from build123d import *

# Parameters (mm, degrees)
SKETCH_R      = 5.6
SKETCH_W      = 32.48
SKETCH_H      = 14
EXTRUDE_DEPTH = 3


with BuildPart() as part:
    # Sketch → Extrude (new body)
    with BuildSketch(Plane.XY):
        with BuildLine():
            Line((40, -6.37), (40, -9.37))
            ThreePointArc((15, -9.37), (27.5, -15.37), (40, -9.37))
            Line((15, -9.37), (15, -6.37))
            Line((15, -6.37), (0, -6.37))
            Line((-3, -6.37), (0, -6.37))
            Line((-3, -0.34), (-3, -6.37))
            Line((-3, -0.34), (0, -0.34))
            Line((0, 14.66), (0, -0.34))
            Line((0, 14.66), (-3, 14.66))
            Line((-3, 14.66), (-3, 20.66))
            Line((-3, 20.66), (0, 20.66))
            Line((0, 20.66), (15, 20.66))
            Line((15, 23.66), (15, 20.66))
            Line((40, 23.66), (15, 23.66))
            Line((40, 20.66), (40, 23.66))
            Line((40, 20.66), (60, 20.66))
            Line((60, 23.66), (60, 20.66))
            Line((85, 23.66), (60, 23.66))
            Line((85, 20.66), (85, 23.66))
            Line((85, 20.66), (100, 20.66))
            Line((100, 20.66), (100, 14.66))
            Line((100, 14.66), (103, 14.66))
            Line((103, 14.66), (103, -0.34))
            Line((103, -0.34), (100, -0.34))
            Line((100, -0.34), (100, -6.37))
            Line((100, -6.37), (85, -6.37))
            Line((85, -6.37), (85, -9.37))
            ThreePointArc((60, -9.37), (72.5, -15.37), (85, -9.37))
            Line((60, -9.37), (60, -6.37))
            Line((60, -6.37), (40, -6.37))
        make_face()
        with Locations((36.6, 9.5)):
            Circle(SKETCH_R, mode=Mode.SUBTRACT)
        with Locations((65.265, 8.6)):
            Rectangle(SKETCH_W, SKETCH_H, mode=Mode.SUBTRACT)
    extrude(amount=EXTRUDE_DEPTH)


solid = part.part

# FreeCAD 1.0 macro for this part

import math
import FreeCAD as App
import Part
import Sketcher
Q = App.Units.Quantity

doc = App.newDocument("Part")
body = doc.addObject("PartDesign::Body", "Body")

# Sketch on XY plane
sketch1 = body.newObject("Sketcher::SketchObject", "Sketch")
sketch1.AttachmentSupport = (doc.getObject("XY_Plane"), [""])
sketch1.MapMode = "FlatFace"
sketch1.addGeometry([
    Part.LineSegment(App.Vector(40, -9.4, 0), App.Vector(40, -6.4, 0)),  # 0
    Part.LineSegment(App.Vector(40, -6.4, 0), App.Vector(60, -6.4, 0)),  # 1
    Part.LineSegment(App.Vector(60, -6.4, 0), App.Vector(60, -9.4, 0)),  # 2
    Part.ArcOfCircle(Part.Circle(App.Vector(72.5, 0.7, 0), App.Vector(0, 0, 1), 16), math.radians(-141), math.radians(-39)),  # 3
    Part.LineSegment(App.Vector(85, -9.4, 0), App.Vector(85, -6.4, 0)),  # 4
    Part.LineSegment(App.Vector(85, -6.4, 0), App.Vector(100, -6.4, 0)),  # 5
    Part.LineSegment(App.Vector(100, -6.4, 0), App.Vector(100, -0.3, 0)),  # 6
    Part.LineSegment(App.Vector(100, -0.3, 0), App.Vector(103, -0.3, 0)),  # 7
    Part.LineSegment(App.Vector(103, -0.3, 0), App.Vector(103, 14.7, 0)),  # 8
    Part.LineSegment(App.Vector(103, 14.7, 0), App.Vector(100, 14.7, 0)),  # 9
    Part.LineSegment(App.Vector(100, 14.7, 0), App.Vector(100, 20.7, 0)),  # 10
    Part.LineSegment(App.Vector(100, 20.7, 0), App.Vector(85, 20.7, 0)),  # 11
    Part.LineSegment(App.Vector(85, 20.7, 0), App.Vector(85, 23.7, 0)),  # 12
    Part.LineSegment(App.Vector(85, 23.7, 0), App.Vector(60, 23.7, 0)),  # 13
    Part.LineSegment(App.Vector(60, 23.7, 0), App.Vector(60, 20.7, 0)),  # 14
    Part.LineSegment(App.Vector(60, 20.7, 0), App.Vector(40, 20.7, 0)),  # 15
    Part.LineSegment(App.Vector(40, 20.7, 0), App.Vector(40, 23.7, 0)),  # 16
    Part.LineSegment(App.Vector(40, 23.7, 0), App.Vector(15, 23.7, 0)),  # 17
    Part.LineSegment(App.Vector(15, 23.7, 0), App.Vector(15, 20.7, 0)),  # 18
    Part.LineSegment(App.Vector(15, 20.7, 0), App.Vector(-3, 20.7, 0)),  # 19
    Part.LineSegment(App.Vector(-3, 20.7, 0), App.Vector(-3, 14.7, 0)),  # 20
    Part.LineSegment(App.Vector(-3, 14.7, 0), App.Vector(0, 14.7, 0)),  # 21
    Part.LineSegment(App.Vector(0, 14.7, 0), App.Vector(0, -0.3, 0)),  # 22
    Part.LineSegment(App.Vector(0, -0.3, 0), App.Vector(-3, -0.3, 0)),  # 23
    Part.LineSegment(App.Vector(-3, -0.3, 0), App.Vector(-3, -6.4, 0)),  # 24
    Part.LineSegment(App.Vector(-3, -6.4, 0), App.Vector(15, -6.4, 0)),  # 25
    Part.LineSegment(App.Vector(15, -6.4, 0), App.Vector(15, -9.4, 0)),  # 26
    Part.ArcOfCircle(Part.Circle(App.Vector(27.5, 0.7, 0), App.Vector(0, 0, 1), 16), math.radians(-141), math.radians(-39)),  # 27
    Part.LineSegment(App.Vector(49, 1.6, 0), App.Vector(49, 15.6, 0)),  # 28
    Part.LineSegment(App.Vector(49, 15.6, 0), App.Vector(81.5, 15.6, 0)),  # 29
    Part.LineSegment(App.Vector(81.5, 15.6, 0), App.Vector(81.5, 1.6, 0)),  # 30
    Part.LineSegment(App.Vector(81.5, 1.6, 0), App.Vector(49, 1.6, 0)),  # 31
    Part.Circle(App.Vector(36.6, 9.5, 0), App.Vector(0, 0, 1), 5.6),  # 32
], False)
sketch1.addConstraint([
    Sketcher.Constraint("Coincident", 0, 2, 1, 1),
    Sketcher.Constraint("Coincident", 1, 2, 2, 1),
    Sketcher.Constraint("Coincident", 2, 2, 3, 1),
    Sketcher.Constraint("Coincident", 3, 2, 4, 1),
    Sketcher.Constraint("Coincident", 4, 2, 5, 1),
    Sketcher.Constraint("Coincident", 5, 2, 6, 1),
    Sketcher.Constraint("Coincident", 6, 2, 7, 1),
    Sketcher.Constraint("Coincident", 7, 2, 8, 1),
    Sketcher.Constraint("Coincident", 8, 2, 9, 1),
    Sketcher.Constraint("Coincident", 9, 2, 10, 1),
    Sketcher.Constraint("Coincident", 10, 2, 11, 1),
    Sketcher.Constraint("Coincident", 11, 2, 12, 1),
    Sketcher.Constraint("Coincident", 12, 2, 13, 1),
    Sketcher.Constraint("Coincident", 13, 2, 14, 1),
    Sketcher.Constraint("Coincident", 14, 2, 15, 1),
    Sketcher.Constraint("Coincident", 15, 2, 16, 1),
    Sketcher.Constraint("Coincident", 16, 2, 17, 1),
    Sketcher.Constraint("Coincident", 17, 2, 18, 1),
    Sketcher.Constraint("Coincident", 18, 2, 19, 1),
    Sketcher.Constraint("Coincident", 19, 2, 20, 1),
    Sketcher.Constraint("Coincident", 20, 2, 21, 1),
    Sketcher.Constraint("Coincident", 21, 2, 22, 1),
    Sketcher.Constraint("Coincident", 22, 2, 23, 1),
    Sketcher.Constraint("Coincident", 23, 2, 24, 1),
    Sketcher.Constraint("Coincident", 24, 2, 25, 1),
    Sketcher.Constraint("Coincident", 25, 2, 26, 1),
    Sketcher.Constraint("Coincident", 26, 2, 27, 1),
    Sketcher.Constraint("Coincident", 27, 2, 0, 1),
    Sketcher.Constraint("Coincident", 28, 2, 29, 1),
    Sketcher.Constraint("Coincident", 29, 2, 30, 1),
    Sketcher.Constraint("Coincident", 30, 2, 31, 1),
    Sketcher.Constraint("Coincident", 31, 2, 28, 1),
    Sketcher.Constraint("Vertical", 0),
    Sketcher.Constraint("Horizontal", 1),
    Sketcher.Constraint("Vertical", 2),
    Sketcher.Constraint("Vertical", 4),
    Sketcher.Constraint("Horizontal", 5),
    Sketcher.Constraint("Vertical", 6),
    Sketcher.Constraint("Horizontal", 7),
    Sketcher.Constraint("Vertical", 8),
    Sketcher.Constraint("Horizontal", 9),
    Sketcher.Constraint("Vertical", 10),
    Sketcher.Constraint("Horizontal", 11),
    Sketcher.Constraint("Vertical", 12),
    Sketcher.Constraint("Horizontal", 13),
    Sketcher.Constraint("Vertical", 14),
    Sketcher.Constraint("Horizontal", 15),
    Sketcher.Constraint("Vertical", 16),
    Sketcher.Constraint("Horizontal", 17),
    Sketcher.Constraint("Vertical", 18),
    Sketcher.Constraint("Horizontal", 19),
    Sketcher.Constraint("Vertical", 20),
    Sketcher.Constraint("Horizontal", 21),
    Sketcher.Constraint("Vertical", 22),
    Sketcher.Constraint("Horizontal", 23),
    Sketcher.Constraint("Vertical", 24),
    Sketcher.Constraint("Horizontal", 25),
    Sketcher.Constraint("Vertical", 26),
    Sketcher.Constraint("Vertical", 28),
    Sketcher.Constraint("Horizontal", 29),
    Sketcher.Constraint("Vertical", 30),
    Sketcher.Constraint("Horizontal", 31),
    Sketcher.Constraint("Equal", 3, 27),
    Sketcher.Constraint("PointOnObject", 21, 2, -2),
    Sketcher.Constraint("Horizontal", 3, 3, 27, 3),
    Sketcher.Constraint("Horizontal", 2, 2, 3, 2),
    Sketcher.Constraint("Horizontal", 1, 2, 4, 2),
    Sketcher.Constraint("Horizontal", 11, 2, 14, 2),
    Sketcher.Constraint("Horizontal", 13, 2, 16, 2),
    Sketcher.Constraint("Horizontal", 15, 2, 18, 2),
    Sketcher.Constraint("Horizontal", 9, 2, 20, 2),
    Sketcher.Constraint("Horizontal", 7, 2, 22, 2),
    Sketcher.Constraint("Horizontal", 5, 2, 24, 2),
    Sketcher.Constraint("Horizontal", 3, 2, 26, 2),
    Sketcher.Constraint("Horizontal", 26, 2, 27, 2),
    Sketcher.Constraint("Vertical", 6, 2, 9, 2),
    Sketcher.Constraint("Vertical", 4, 2, 11, 2),
    Sketcher.Constraint("Vertical", 2, 2, 13, 2),
    Sketcher.Constraint("Vertical", 0, 2, 15, 2),
    Sketcher.Constraint("Vertical", 20, 2, 23, 2),
    Sketcher.Constraint("Vertical", 18, 2, 25, 2),
    Sketcher.Constraint("Equal", 9, 21),
    Sketcher.Constraint("Equal", 23, 0),
    Sketcher.Constraint("Equal", 11, 8),
    Sketcher.Constraint("Equal", 4, 12),
    Sketcher.Constraint("Diameter", 32, Q("11.2 mm")),
    Sketcher.Constraint("DistanceX", 1, 1, 1, 2, Q("20 mm")),
    Sketcher.Constraint("DistanceX", 5, 1, 5, 2, Q("15 mm")),
    Sketcher.Constraint("DistanceX", 7, 1, 7, 2, Q("3 mm")),
    Sketcher.Constraint("DistanceX", 13, 2, 13, 1, Q("25 mm")),
    Sketcher.Constraint("DistanceX", 19, 2, 19, 1, Q("18 mm")),
    Sketcher.Constraint("DistanceY", 10, 1, 10, 2, Q("6 mm")),
    Sketcher.Constraint("DistanceY", 28, 1, 28, 2, Q("14 mm")),
    Sketcher.Constraint("DistanceX", 29, 1, 29, 2, Q("32.48 mm")),
    Sketcher.Constraint("DistanceY", 6, 1, 6, 2, Q("6.03 mm")),
    Sketcher.Constraint("DistanceX", -1, 1, 32, 3, Q("36.6 mm")),
    Sketcher.Constraint("DistanceY", -1, 1, 32, 3, Q("9.5 mm")),
    Sketcher.Constraint("DistanceY", -1, 1, 28, 2, Q("15.6 mm")),
    Sketcher.Constraint("DistanceY", 0, 2, -1, 1, Q("6.37 mm")),
    Sketcher.Constraint("DistanceX", -1, 1, 28, 2, Q("49.025 mm")),
    Sketcher.Constraint("Radius", 3, Q("16.020833 mm")),
])
pad1 = body.newObject("PartDesign::Pad", "Pad")
pad1.Profile = sketch1
pad1.Length = 3

doc.recompute()
